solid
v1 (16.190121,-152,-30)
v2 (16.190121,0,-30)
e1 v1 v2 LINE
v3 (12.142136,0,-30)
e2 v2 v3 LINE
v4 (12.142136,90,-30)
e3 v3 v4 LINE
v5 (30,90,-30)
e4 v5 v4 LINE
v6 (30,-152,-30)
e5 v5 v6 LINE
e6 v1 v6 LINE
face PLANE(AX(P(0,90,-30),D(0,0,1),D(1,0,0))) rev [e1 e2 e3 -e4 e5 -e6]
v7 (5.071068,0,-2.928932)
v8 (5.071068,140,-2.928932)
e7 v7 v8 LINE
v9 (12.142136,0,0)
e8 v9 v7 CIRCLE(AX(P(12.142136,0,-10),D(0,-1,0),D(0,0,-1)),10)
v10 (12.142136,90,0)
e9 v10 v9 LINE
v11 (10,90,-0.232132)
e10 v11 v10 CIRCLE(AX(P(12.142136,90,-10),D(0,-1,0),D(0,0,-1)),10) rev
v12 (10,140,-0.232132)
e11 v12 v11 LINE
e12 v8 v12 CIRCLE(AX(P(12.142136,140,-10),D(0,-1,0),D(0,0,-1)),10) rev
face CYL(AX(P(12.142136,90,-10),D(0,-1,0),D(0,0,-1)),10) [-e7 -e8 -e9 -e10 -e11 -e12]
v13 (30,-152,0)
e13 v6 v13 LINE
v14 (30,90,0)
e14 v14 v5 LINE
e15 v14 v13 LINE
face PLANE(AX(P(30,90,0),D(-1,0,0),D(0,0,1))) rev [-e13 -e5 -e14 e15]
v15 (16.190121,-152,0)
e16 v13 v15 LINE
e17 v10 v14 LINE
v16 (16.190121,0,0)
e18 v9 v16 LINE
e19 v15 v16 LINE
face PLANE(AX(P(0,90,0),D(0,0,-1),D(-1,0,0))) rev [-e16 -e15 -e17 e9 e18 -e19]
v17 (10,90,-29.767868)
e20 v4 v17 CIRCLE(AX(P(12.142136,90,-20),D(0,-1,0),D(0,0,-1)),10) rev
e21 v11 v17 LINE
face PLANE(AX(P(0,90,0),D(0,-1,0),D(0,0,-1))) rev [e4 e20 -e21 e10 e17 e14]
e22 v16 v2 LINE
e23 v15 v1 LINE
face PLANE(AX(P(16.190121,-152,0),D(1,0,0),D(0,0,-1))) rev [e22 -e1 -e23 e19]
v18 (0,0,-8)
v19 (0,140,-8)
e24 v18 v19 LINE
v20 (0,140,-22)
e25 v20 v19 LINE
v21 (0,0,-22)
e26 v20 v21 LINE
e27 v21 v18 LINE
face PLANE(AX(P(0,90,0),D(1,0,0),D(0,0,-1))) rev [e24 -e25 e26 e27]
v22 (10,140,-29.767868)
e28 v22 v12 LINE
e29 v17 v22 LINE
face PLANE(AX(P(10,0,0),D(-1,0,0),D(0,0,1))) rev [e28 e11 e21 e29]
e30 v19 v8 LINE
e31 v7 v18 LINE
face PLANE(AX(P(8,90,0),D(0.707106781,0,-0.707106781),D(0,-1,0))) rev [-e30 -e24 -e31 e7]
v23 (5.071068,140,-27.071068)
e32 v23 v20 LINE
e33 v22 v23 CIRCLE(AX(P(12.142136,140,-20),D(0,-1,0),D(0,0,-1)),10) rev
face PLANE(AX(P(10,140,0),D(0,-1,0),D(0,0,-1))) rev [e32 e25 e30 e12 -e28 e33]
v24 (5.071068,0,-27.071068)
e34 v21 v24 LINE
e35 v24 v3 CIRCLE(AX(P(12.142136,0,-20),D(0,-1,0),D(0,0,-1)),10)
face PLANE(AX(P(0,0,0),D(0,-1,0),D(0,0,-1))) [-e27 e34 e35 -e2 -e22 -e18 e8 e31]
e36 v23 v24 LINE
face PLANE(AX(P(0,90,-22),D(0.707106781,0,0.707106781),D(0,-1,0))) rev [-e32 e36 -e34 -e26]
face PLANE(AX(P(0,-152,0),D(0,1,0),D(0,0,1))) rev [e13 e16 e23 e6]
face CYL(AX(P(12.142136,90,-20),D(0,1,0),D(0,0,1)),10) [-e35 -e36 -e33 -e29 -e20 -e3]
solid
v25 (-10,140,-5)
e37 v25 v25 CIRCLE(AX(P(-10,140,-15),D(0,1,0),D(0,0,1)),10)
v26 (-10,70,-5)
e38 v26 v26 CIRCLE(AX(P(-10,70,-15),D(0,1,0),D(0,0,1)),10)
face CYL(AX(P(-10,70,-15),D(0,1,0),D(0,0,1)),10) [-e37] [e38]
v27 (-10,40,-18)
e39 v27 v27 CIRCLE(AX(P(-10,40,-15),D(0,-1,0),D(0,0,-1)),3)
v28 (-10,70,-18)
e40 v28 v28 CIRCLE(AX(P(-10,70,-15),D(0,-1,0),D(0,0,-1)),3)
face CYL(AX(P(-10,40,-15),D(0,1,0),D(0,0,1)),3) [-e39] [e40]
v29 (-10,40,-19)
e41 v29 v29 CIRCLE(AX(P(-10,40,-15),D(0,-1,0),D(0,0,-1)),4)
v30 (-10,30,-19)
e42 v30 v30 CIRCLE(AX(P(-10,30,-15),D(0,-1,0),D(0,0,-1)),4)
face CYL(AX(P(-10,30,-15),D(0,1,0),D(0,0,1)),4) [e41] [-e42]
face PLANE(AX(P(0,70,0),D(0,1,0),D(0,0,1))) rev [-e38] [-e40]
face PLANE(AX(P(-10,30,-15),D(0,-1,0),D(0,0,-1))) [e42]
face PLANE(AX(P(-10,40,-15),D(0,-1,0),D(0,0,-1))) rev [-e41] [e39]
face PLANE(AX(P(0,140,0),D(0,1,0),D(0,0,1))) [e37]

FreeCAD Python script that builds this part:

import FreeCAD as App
import Part
import Sketcher
from FreeCAD import Vector
Q = App.Units.Quantity


def edges_at(feature, points):
    """Names of the edges that pass closest to the given points."""
    edges = feature.Shape.Edges
    near = lambda p: min(range(len(edges)), key=lambda i: edges[i].distToShape(Part.Vertex(*p))[0])
    return sorted({f"Edge{near(p) + 1}" for p in points})


def add_polygon(sketch, points):
    """Adds a closed chain of lines whose ends are joined by coincident constraints."""
    first, n = sketch.GeometryCount, len(points)
    for a, b in zip(points, points[1:] + points[:1]):
        sketch.addGeometry(Part.LineSegment(App.Vector(*a, 0), App.Vector(*b, 0)), False)
    for i in range(n):
        sketch.addConstraint(Sketcher.Constraint("Coincident", first + i, 2, first + (i + 1) % n, 1))

doc = App.newDocument("Part")
body = doc.addObject("PartDesign::Body", "Body")

# Sketch on XZ plane
sketch1 = body.newObject("Sketcher::SketchObject", "Sketch")
sketch1.AttachmentSupport = (doc.getObject("XZ_Plane"), [""])
sketch1.MapMode = "FlatFace"
add_polygon(sketch1, [(0, -30), (0, 0), (30, 0), (30, -30)])  # lines 0-3
sketch1.addConstraint([
    Sketcher.Constraint("Vertical", 0),
    Sketcher.Constraint("Horizontal", 1),
    Sketcher.Constraint("Vertical", 2),
    Sketcher.Constraint("Horizontal", 3),
    Sketcher.Constraint("Coincident", 0, 2, -1, 1),
    Sketcher.Constraint("Equal", 3, 0),
    Sketcher.Constraint("DistanceX", 1, 1, 1, 2, Q("30 mm")),
])
pad1 = body.newObject("PartDesign::Pad", "Pad")
pad1.Profile = sketch1
pad1.Length = 90
pad1.Reversed = True

# Sketch on YZ plane
sketch2 = body.newObject("Sketcher::SketchObject", "Sketch001")
sketch2.AttachmentSupport = (doc.getObject("YZ_Plane"), [""])
sketch2.MapMode = "FlatFace"
add_polygon(sketch2, [(140, 0), (90, 0), (90, -30), (140, -30)])  # lines 0-3
sketch2.addConstraint([
    Sketcher.Constraint("Horizontal", 0),
    Sketcher.Constraint("Vertical", 1),
    Sketcher.Constraint("Horizontal", 2),
    Sketcher.Constraint("Vertical", 3),
    Sketcher.Constraint("PointOnObject", 0, 2, -1),
    Sketcher.Constraint("DistanceX", 0, 2, 0, 1, Q("50 mm")),
    Sketcher.Constraint("DistanceY", 1, 2, 1, 1, Q("30 mm")),
    Sketcher.Constraint("DistanceX", -1, 1, 0, 2, Q("90 mm")),
])
pad2 = body.newObject("PartDesign::Pad", "Pad001")
pad2.Profile = sketch2
pad2.Length = 10
doc.recompute()

chamfer = body.newObject("PartDesign::Chamfer", "Chamfer")
chamfer.Base = (pad2, edges_at(pad2, [(0, 70, -30), (0, 70, 0)]))
chamfer.Size = 8
doc.recompute()

fillet = body.newObject("PartDesign::Fillet", "Fillet")
fillet.Base = (chamfer, edges_at(chamfer, [(8, 70, -30), (8, 70, 0)]))
fillet.Radius = 10

# Sketch on XZ plane
sketch3 = body.newObject("Sketcher::SketchObject", "Sketch002")
sketch3.AttachmentSupport = (doc.getObject("XZ_Plane"), [""])
sketch3.MapMode = "FlatFace"
add_polygon(sketch3, [(16, 0), (16, -30), (30, -30), (30, 0)])  # lines 0-3
sketch3.addConstraint([
    Sketcher.Constraint("Vertical", 0),
    Sketcher.Constraint("Horizontal", 1),
    Sketcher.Constraint("Vertical", 2),
    Sketcher.Constraint("Horizontal", 3),
    Sketcher.Constraint("PointOnObject", 2, 2, -1),
    Sketcher.Constraint("DistanceY", 0, 2, 0, 1, Q("30 mm")),
    Sketcher.Constraint("DistanceX", -1, 1, 1, 2, Q("30 mm")),
    Sketcher.Constraint("DistanceX", 1, 1, 1, 2, Q("13.809879 mm")),
])
pad3 = body.newObject("PartDesign::Pad", "Pad002")
pad3.Profile = sketch3
pad3.Length = 152
body2 = doc.addObject("PartDesign::Body", "Body001")

# Sketch on XZ plane
sketch4 = body2.newObject("Sketcher::SketchObject", "Sketch003")
sketch4.AttachmentSupport = (doc.getObject("XZ_Plane001"), [""])
sketch4.MapMode = "FlatFace"
sketch4.AttachmentOffset = App.Placement(Vector(0, 0, -140), App.Rotation())
sketch4.addGeometry(Part.Circle(Vector(-10, -15, 0), Vector(0, 0, 1), 10), False)
sketch4.addConstraint([
    Sketcher.Constraint("Diameter", 0, Q("20 mm")),
    Sketcher.Constraint("DistanceX", 0, 3, -1, 1, Q("10 mm")),
    Sketcher.Constraint("DistanceY", 0, 3, -1, 1, Q("15 mm")),
])
pad4 = body2.newObject("PartDesign::Pad", "Pad003")
pad4.Profile = sketch4
pad4.Length = 70

# Sketch on XZ plane
sketch5 = body2.newObject("Sketcher::SketchObject", "Sketch004")
sketch5.AttachmentSupport = (doc.getObject("XZ_Plane001"), [""])
sketch5.MapMode = "FlatFace"
sketch5.AttachmentOffset = App.Placement(Vector(0, 0, -70), App.Rotation())
sketch5.addGeometry(Part.Circle(Vector(-10, -15, 0), Vector(0, 0, 1), 3), False)
sketch5.addConstraint([
    Sketcher.Constraint("Diameter", 0, Q("6 mm")),
    Sketcher.Constraint("DistanceX", 0, 3, -1, 1, Q("10 mm")),
    Sketcher.Constraint("DistanceY", 0, 3, -1, 1, Q("15 mm")),
])
pad5 = body2.newObject("PartDesign::Pad", "Pad004")
pad5.Profile = sketch5
pad5.Length = 30

# Sketch on XZ plane
sketch6 = body2.newObject("Sketcher::SketchObject", "Sketch005")
sketch6.AttachmentSupport = (doc.getObject("XZ_Plane001"), [""])
sketch6.MapMode = "FlatFace"
sketch6.AttachmentOffset = App.Placement(Vector(0, 0, -40), App.Rotation())
sketch6.addGeometry(Part.Circle(Vector(-10, -15, 0), Vector(0, 0, 1), 4), False)
sketch6.addConstraint([
    Sketcher.Constraint("Diameter", 0, Q("8 mm")),
    Sketcher.Constraint("DistanceX", 0, 3, -1, 1, Q("10 mm")),
    Sketcher.Constraint("DistanceY", 0, 3, -1, 1, Q("15 mm")),
])
pad6 = body2.newObject("PartDesign::Pad", "Pad005")
pad6.Profile = sketch6
pad6.Length = 10

doc.recompute()
